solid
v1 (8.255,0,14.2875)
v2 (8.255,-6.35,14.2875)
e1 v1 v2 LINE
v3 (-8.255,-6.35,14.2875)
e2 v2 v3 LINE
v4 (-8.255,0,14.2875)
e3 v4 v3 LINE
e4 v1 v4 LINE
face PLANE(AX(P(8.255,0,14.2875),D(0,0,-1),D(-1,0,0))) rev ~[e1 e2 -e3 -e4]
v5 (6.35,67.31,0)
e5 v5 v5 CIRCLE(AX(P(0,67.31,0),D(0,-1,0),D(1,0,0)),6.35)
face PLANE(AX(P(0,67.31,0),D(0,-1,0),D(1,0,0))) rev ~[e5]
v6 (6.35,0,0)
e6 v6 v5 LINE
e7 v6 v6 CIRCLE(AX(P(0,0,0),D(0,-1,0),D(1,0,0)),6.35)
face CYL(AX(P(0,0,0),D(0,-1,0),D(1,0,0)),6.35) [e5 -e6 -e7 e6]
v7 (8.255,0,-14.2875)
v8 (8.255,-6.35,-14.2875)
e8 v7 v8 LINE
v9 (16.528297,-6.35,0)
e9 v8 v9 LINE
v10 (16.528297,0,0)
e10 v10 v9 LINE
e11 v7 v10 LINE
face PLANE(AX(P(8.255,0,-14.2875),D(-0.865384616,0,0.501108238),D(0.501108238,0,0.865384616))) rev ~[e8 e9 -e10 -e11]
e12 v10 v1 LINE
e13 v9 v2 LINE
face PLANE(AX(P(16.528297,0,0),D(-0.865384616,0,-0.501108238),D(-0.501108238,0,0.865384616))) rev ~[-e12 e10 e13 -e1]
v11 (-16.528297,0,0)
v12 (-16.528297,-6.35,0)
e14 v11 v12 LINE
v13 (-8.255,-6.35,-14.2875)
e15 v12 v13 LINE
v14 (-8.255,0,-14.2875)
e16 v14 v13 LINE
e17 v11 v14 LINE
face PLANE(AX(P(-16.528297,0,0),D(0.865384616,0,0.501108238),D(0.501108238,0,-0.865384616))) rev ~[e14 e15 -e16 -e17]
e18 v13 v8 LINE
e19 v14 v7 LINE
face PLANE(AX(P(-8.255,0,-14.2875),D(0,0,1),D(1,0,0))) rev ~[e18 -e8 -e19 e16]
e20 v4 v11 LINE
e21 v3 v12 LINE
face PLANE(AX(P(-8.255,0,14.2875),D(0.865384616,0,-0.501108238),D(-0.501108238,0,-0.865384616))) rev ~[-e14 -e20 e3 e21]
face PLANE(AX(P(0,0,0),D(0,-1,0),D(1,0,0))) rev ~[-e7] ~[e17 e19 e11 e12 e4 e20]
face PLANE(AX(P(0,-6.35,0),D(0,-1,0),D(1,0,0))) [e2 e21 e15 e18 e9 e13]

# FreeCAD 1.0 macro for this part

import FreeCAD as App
import Part
import Sketcher
from FreeCAD import Vector
Q = App.Units.Quantity

doc = App.newDocument("Part")
body = doc.addObject("PartDesign::Body", "Body")

# Sketch on XZ plane
sketch1 = doc.addObject("Sketcher::SketchObject", "Sketch")
body.addObject(sketch1)
sketch1.AttachmentSupport = (doc.XZ_Plane, [""])
sketch1.MapMode = "FlatFace"
sketch1.addGeometry(Part.Circle(Vector(0, 0, 0), Vector(0, 0, 1), 6), False)
sketch1.addConstraint(Sketcher.Constraint("Coincident", 0, 3, -1, 1))
sketch1.addConstraint(Sketcher.Constraint("Diameter", 0, Q("0.5 in")))
pad1 = doc.addObject("PartDesign::Pad", "Pad")
body.addObject(pad1)
pad1.Profile = sketch1
pad1.Length = Q("2.65 in")
pad1.Reversed = True

# Sketch on XZ plane
sketch2 = doc.addObject("Sketcher::SketchObject", "Sketch001")
body.addObject(sketch2)
sketch2.AttachmentSupport = (doc.XZ_Plane, [""])
sketch2.MapMode = "FlatFace"
sketch2.addGeometry(Part.LineSegment(Vector(-8, 14, 0), Vector(-17, 0, 0)), False)
sketch2.addGeometry(Part.LineSegment(Vector(-17, 0, 0), Vector(-8, -14, 0)), False)
sketch2.addGeometry(Part.LineSegment(Vector(-8, -14, 0), Vector(8, -14, 0)), False)
sketch2.addGeometry(Part.LineSegment(Vector(8, -14, 0), Vector(17, 0, 0)), False)
sketch2.addGeometry(Part.LineSegment(Vector(17, 0, 0), Vector(8, 14, 0)), False)
sketch2.addGeometry(Part.LineSegment(Vector(8, 14, 0), Vector(-8, 14, 0)), False)
sketch2.addConstraint(Sketcher.Constraint("Coincident", 0, 2, 1, 1))
sketch2.addConstraint(Sketcher.Constraint("Coincident", 1, 2, 2, 1))
sketch2.addConstraint(Sketcher.Constraint("Coincident", 2, 2, 3, 1))
sketch2.addConstraint(Sketcher.Constraint("Coincident", 3, 2, 4, 1))
sketch2.addConstraint(Sketcher.Constraint("Coincident", 4, 2, 5, 1))
sketch2.addConstraint(Sketcher.Constraint("Coincident", 5, 2, 0, 1))
sketch2.addConstraint(Sketcher.Constraint("Horizontal", 2))
sketch2.addConstraint(Sketcher.Constraint("Horizontal", 5))
sketch2.addConstraint(Sketcher.Constraint("Symmetric", 0, 2, 3, 2, -1, 1))
sketch2.addConstraint(Sketcher.Constraint("Symmetric", 1, 2, 4, 2, -1, 1))
sketch2.addConstraint(Sketcher.Constraint("PointOnObject", 0, 2, -1))
sketch2.addConstraint(Sketcher.Constraint("Parallel", 0, 3))
sketch2.addConstraint(Sketcher.Constraint("Vertical", 2, 2, 4, 2))
sketch2.addConstraint(Sketcher.Constraint("DistanceX", 2, 1, 2, 2, Q("0.65 in")))
sketch2.addConstraint(Sketcher.Constraint("Distance", 0, Q("0.65 in")))
sketch2.addConstraint(Sketcher.Constraint("DistanceY", 1, 2, -1, 1, Q("0.5625 in")))
pad2 = doc.addObject("PartDesign::Pad", "Pad001")
body.addObject(pad2)
pad2.Profile = sketch2
pad2.Length = Q("0.25 in")

doc.recompute()
